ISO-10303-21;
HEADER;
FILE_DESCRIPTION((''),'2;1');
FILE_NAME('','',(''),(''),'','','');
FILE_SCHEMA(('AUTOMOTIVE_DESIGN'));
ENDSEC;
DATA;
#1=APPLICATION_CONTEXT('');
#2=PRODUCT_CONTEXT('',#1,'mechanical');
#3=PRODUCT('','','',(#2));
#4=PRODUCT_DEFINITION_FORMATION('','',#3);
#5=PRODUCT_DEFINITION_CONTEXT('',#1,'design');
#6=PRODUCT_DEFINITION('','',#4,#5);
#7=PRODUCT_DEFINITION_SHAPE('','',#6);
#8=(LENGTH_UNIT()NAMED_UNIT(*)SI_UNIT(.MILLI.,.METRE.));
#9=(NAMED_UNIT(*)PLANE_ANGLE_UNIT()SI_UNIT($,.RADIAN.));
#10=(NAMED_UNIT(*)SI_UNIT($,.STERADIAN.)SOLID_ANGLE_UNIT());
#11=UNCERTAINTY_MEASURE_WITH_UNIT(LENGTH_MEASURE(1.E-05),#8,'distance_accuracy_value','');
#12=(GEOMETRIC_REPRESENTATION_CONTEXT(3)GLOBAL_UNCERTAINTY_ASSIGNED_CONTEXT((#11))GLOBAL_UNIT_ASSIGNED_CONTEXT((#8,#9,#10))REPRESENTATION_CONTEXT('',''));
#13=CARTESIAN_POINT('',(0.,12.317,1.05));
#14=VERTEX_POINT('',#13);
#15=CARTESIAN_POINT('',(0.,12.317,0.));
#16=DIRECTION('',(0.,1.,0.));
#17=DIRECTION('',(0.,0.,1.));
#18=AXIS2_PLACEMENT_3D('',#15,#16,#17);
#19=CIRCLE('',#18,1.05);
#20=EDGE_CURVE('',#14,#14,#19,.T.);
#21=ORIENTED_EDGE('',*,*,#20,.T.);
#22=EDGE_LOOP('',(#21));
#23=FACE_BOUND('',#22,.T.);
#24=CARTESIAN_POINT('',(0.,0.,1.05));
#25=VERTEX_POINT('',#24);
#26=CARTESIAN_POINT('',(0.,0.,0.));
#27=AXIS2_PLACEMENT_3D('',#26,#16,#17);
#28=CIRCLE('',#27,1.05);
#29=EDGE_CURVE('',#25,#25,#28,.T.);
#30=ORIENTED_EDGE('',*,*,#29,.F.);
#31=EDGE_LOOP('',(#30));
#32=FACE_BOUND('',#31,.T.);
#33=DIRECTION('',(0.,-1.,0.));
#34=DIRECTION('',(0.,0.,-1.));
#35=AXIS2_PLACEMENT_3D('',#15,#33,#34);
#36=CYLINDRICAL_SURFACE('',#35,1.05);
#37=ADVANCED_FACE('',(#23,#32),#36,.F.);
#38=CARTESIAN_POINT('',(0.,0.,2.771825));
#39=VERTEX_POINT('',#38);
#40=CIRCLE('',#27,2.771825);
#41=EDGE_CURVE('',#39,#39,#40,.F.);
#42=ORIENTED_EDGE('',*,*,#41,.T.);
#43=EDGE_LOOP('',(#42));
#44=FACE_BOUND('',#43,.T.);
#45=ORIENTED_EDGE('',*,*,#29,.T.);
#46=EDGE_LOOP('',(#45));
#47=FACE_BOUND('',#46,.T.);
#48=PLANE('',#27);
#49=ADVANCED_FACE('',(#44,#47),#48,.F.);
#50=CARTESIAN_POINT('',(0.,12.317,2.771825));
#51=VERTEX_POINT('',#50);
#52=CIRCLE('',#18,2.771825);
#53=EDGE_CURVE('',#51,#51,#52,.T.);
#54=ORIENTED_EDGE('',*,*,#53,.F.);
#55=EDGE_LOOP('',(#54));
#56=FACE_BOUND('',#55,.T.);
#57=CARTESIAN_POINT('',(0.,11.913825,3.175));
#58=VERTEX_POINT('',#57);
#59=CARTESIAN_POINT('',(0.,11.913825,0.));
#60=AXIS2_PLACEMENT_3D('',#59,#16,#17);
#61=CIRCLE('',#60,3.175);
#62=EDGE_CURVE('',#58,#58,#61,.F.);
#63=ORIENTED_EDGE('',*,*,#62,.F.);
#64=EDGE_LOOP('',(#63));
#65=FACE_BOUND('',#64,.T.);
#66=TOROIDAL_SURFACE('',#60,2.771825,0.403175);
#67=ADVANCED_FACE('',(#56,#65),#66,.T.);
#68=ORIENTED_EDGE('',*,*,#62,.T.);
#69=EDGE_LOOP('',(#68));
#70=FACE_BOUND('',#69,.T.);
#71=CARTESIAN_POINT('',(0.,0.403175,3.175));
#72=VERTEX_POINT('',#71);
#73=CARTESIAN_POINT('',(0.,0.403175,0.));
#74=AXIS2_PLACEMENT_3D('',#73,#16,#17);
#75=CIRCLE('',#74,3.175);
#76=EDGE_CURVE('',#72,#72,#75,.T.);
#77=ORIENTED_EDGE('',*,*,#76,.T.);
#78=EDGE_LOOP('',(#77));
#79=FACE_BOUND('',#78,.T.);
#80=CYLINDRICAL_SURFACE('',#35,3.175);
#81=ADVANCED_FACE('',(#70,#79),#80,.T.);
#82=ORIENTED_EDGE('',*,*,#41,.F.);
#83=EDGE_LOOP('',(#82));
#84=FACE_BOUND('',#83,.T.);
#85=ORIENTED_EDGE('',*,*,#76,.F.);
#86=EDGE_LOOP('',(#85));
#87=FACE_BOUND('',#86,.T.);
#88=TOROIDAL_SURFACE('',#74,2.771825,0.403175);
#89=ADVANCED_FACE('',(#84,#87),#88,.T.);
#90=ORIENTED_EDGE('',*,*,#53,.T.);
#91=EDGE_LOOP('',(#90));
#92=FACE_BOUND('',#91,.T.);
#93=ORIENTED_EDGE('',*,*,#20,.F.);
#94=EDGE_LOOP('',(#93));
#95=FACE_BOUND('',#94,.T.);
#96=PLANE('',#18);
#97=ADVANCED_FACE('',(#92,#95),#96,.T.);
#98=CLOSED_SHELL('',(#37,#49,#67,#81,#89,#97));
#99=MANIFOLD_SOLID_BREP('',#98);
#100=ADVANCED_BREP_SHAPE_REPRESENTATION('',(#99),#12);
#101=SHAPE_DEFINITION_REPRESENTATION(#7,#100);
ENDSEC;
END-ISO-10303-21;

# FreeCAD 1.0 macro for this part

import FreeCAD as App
import Part
import Sketcher
Q = App.Units.Quantity


def edges_at(feature, points):
    """Names of the edges that pass closest to the given points."""
    edges = feature.Shape.Edges
    near = lambda p: min(range(len(edges)), key=lambda i: edges[i].distToShape(Part.Vertex(*p))[0])
    return sorted({f"Edge{near(p) + 1}" for p in points})

doc = App.newDocument("Part")
body = doc.addObject("PartDesign::Body", "Body")

# Sketch on XZ plane
sketch1 = body.newObject("Sketcher::SketchObject", "Sketch")
sketch1.AttachmentSupport = (doc.getObject("XZ_Plane"), [""])
sketch1.MapMode = "FlatFace"
sketch1.addGeometry(Part.Circle(App.Vector(0, 0, 0), App.Vector(0, 0, 1), 3.2), False)
sketch1.addGeometry(Part.Circle(App.Vector(0, 0, 0), App.Vector(0, 0, 1), 1.1), False)
sketch1.addConstraint(Sketcher.Constraint("Coincident", 0, 3, -1, 1))
sketch1.addConstraint(Sketcher.Constraint("Coincident", 1, 3, -1, 1))
sketch1.addConstraint(Sketcher.Constraint("Diameter", 1, Q("2.1 mm")))
sketch1.addConstraint(Sketcher.Constraint("Diameter", 0, Q("6.35 mm")))
pad1 = body.newObject("PartDesign::Pad", "Pad")
pad1.Profile = sketch1
pad1.Length = 12.317
pad1.Reversed = True
doc.recompute()

fillet = body.newObject("PartDesign::Fillet", "Fillet")
fillet.Base = (pad1, edges_at(pad1, [(0, 0, -3.175), (0, 12.317, -3.175)]))
fillet.Radius = 0.403175

doc.recompute()
